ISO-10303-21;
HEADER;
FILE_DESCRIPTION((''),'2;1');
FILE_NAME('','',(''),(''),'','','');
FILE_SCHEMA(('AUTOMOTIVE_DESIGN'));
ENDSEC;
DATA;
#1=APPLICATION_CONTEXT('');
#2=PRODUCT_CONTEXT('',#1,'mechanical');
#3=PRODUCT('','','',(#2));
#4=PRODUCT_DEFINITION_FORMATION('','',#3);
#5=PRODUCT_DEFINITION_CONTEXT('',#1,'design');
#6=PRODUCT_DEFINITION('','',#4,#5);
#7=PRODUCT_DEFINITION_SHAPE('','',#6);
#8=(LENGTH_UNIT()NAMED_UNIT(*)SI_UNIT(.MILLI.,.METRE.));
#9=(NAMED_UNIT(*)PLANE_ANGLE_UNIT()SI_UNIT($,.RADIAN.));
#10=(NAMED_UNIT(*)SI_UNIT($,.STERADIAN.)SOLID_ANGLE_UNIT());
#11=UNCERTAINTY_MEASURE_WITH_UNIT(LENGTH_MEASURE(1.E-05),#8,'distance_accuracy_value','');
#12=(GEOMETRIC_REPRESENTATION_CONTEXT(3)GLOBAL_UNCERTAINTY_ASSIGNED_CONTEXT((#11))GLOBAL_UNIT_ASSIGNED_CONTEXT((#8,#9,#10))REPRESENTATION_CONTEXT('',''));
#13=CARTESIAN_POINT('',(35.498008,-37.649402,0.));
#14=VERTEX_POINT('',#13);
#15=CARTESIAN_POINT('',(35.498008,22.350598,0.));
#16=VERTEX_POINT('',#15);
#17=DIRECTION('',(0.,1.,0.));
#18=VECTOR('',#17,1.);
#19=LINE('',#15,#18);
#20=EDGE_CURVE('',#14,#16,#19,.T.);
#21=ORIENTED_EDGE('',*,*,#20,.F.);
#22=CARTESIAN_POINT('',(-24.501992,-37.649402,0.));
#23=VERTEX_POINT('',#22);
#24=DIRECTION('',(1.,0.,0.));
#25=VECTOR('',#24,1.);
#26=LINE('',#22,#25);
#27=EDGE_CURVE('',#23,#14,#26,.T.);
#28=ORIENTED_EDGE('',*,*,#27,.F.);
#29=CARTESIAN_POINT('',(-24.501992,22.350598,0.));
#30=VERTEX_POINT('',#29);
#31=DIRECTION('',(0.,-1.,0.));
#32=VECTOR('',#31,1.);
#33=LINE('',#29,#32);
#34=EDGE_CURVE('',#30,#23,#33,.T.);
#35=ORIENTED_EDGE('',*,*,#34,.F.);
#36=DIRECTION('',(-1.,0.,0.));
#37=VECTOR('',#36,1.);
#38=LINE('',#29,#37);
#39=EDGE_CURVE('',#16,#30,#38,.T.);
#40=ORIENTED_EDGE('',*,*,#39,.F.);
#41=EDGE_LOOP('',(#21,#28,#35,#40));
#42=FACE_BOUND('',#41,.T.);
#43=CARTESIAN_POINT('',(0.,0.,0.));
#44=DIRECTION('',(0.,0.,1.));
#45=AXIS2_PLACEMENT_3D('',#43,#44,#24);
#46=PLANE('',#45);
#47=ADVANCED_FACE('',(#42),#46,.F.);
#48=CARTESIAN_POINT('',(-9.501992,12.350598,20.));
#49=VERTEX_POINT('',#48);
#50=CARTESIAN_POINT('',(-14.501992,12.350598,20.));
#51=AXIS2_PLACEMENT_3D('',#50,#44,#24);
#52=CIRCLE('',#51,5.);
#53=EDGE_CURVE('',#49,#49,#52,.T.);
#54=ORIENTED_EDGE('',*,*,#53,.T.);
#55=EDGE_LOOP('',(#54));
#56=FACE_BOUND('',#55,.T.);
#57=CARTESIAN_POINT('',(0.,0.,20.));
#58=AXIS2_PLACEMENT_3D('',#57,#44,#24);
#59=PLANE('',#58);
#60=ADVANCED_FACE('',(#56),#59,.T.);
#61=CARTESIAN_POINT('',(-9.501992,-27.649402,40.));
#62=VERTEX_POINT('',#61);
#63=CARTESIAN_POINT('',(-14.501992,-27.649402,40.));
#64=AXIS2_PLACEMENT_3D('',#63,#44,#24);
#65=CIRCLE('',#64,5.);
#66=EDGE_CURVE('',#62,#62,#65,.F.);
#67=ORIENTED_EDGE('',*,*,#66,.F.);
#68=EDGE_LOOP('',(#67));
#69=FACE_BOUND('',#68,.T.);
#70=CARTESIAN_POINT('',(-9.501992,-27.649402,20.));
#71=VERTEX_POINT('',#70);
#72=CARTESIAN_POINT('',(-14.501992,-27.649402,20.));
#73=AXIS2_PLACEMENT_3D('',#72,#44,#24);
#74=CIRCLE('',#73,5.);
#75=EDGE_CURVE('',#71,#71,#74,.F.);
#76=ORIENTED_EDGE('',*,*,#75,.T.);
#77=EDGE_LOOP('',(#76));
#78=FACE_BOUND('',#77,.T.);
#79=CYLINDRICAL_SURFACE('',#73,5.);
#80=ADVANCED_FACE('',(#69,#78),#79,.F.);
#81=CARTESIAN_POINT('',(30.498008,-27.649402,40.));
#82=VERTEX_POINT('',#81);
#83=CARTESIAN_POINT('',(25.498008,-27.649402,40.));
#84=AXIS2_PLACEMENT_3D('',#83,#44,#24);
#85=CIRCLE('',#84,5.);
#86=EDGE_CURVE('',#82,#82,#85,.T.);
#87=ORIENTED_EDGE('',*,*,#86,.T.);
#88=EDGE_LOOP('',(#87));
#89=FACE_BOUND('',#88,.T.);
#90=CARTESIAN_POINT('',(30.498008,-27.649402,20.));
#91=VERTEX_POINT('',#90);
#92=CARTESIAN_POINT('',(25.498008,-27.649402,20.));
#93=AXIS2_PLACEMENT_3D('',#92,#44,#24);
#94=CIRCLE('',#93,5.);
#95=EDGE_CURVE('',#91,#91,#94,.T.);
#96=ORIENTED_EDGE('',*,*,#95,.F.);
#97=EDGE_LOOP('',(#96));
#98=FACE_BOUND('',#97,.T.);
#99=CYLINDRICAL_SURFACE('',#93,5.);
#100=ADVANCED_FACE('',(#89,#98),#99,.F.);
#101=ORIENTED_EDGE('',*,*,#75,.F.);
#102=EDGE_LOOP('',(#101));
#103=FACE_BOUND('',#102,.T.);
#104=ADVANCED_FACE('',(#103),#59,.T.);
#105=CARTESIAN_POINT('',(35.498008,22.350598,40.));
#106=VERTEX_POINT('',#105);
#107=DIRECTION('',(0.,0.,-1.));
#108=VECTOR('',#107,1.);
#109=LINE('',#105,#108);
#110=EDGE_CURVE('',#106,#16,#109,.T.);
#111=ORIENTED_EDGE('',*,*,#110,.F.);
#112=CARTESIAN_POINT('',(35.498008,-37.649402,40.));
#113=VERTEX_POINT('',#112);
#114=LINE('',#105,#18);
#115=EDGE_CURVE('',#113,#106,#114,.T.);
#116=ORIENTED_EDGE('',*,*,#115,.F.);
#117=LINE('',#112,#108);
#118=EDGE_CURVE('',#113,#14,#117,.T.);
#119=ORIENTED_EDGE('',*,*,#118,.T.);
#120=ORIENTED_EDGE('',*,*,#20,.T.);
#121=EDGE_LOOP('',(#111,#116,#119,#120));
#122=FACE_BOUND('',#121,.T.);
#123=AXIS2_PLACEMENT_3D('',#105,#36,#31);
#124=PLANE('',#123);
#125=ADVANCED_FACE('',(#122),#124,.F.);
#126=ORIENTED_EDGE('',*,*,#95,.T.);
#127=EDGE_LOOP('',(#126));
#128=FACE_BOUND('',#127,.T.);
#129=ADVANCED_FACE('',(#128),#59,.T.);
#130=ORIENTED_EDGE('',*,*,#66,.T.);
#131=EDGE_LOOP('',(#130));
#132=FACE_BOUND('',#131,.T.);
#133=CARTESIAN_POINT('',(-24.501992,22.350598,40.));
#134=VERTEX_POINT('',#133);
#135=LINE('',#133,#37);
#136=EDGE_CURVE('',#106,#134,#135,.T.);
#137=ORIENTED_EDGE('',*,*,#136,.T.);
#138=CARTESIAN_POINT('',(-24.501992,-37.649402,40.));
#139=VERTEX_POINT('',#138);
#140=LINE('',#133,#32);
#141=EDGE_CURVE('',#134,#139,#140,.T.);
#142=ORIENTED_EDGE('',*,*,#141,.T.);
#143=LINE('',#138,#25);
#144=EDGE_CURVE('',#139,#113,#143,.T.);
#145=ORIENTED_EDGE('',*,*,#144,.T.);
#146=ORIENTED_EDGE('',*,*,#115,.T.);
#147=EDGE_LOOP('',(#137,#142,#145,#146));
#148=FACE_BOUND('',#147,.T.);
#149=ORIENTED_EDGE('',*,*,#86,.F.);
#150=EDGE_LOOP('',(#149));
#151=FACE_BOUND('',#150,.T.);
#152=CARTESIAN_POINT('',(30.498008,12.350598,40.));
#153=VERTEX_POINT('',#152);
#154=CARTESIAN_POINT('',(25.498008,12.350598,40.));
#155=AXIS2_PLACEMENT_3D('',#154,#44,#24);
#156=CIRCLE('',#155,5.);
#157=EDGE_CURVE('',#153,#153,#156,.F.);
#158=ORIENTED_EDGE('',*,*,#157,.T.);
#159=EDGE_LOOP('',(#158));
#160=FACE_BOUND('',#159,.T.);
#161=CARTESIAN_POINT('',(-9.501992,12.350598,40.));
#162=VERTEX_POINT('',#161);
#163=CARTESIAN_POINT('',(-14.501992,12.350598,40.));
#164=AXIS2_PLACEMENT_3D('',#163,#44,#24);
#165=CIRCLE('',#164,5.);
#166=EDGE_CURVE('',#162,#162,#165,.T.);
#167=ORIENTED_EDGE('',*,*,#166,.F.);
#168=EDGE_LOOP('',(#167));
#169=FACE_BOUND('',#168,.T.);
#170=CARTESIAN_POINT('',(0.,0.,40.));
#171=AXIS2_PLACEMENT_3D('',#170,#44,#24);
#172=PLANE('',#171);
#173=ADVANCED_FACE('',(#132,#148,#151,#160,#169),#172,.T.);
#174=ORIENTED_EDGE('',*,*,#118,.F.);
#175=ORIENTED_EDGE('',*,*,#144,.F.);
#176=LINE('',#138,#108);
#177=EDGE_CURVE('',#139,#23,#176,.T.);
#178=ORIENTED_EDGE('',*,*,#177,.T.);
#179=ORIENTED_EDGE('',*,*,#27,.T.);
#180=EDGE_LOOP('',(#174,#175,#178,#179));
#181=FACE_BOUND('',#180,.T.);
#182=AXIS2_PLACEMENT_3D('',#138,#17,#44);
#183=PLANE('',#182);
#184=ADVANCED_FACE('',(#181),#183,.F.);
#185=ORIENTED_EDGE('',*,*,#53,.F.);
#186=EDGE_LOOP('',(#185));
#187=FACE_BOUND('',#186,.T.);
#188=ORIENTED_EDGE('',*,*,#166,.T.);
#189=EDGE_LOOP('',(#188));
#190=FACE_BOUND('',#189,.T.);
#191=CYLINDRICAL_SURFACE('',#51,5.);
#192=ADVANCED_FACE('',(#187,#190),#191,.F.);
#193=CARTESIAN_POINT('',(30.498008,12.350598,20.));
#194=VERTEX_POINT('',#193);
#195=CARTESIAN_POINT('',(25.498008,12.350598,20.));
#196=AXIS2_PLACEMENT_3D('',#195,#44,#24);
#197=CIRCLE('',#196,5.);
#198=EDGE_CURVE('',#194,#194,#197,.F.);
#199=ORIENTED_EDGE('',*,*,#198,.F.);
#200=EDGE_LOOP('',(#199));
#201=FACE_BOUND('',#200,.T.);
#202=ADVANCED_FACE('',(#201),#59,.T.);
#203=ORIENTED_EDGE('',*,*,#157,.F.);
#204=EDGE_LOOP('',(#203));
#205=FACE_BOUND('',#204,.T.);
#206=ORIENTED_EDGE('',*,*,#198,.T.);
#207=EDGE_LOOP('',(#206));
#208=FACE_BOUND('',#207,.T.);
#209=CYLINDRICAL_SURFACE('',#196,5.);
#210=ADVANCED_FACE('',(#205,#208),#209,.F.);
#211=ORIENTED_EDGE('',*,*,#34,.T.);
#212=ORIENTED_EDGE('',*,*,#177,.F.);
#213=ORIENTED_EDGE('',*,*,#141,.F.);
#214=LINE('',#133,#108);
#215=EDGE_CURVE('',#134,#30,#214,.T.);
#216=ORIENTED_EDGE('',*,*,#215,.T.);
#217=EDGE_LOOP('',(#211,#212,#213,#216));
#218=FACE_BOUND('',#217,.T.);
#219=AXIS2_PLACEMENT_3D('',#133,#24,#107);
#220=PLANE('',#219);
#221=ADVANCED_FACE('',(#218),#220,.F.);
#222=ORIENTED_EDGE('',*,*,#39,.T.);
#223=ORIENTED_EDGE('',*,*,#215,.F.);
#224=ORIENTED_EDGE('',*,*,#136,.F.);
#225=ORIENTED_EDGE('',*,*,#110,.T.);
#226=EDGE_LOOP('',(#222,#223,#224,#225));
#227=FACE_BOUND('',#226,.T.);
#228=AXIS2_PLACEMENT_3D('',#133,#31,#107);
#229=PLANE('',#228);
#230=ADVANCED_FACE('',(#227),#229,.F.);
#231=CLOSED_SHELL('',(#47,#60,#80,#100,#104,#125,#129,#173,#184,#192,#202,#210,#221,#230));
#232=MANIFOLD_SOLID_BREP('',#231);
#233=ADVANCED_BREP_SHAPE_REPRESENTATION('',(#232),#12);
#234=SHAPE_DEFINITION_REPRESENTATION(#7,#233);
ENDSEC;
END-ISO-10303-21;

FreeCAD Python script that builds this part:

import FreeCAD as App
import Part
import Sketcher

V = App.Vector
Q = App.Units.Quantity

doc = App.newDocument("Part")
body = doc.addObject("PartDesign::Body", "Body")

# Sketch on XY plane
sketch1 = body.newObject("Sketcher::SketchObject", "Sketch")
sketch1.AttachmentSupport = (doc.getObject("XY_Plane"), [""])
sketch1.MapMode = "FlatFace"
sketch1.addGeometry(Part.LineSegment(V(-25, 22, 0), V(-25, -38, 0)), False)
sketch1.addGeometry(Part.LineSegment(V(-25, -38, 0), V(35, -38, 0)), False)
sketch1.addGeometry(Part.LineSegment(V(35, -38, 0), V(35, 22, 0)), False)
sketch1.addGeometry(Part.LineSegment(V(35, 22, 0), V(-25, 22, 0)), False)
sketch1.addConstraint(Sketcher.Constraint("Coincident", 0, 2, 1, 1))
sketch1.addConstraint(Sketcher.Constraint("Coincident", 1, 2, 2, 1))
sketch1.addConstraint(Sketcher.Constraint("Coincident", 2, 2, 3, 1))
sketch1.addConstraint(Sketcher.Constraint("Coincident", 3, 2, 0, 1))
sketch1.addConstraint(Sketcher.Constraint("Vertical", 0))
sketch1.addConstraint(Sketcher.Constraint("Horizontal", 1))
sketch1.addConstraint(Sketcher.Constraint("Vertical", 2))
sketch1.addConstraint(Sketcher.Constraint("Horizontal", 3))
sketch1.addConstraint(Sketcher.Constraint("Equal", 3, 0))
sketch1.addConstraint(Sketcher.Constraint("DistanceX", 1, 1, 1, 2, Q("60 mm")))
sketch1.addConstraint(Sketcher.Constraint("DistanceX", 0, 2, -1, 1, Q("24.501992 mm")))
sketch1.addConstraint(Sketcher.Constraint("DistanceY", 0, 2, -1, 1, Q("37.649402 mm")))
pad1 = body.newObject("PartDesign::Pad", "Pad")
pad1.Profile = sketch1
pad1.Length = 40

# Sketch on XY plane
sketch2 = body.newObject("Sketcher::SketchObject", "Sketch001")
sketch2.AttachmentSupport = (doc.getObject("XY_Plane"), [""])
sketch2.MapMode = "FlatFace"
sketch2.AttachmentOffset = App.Placement(V(0, 0, 40), App.Rotation())
sketch2.addGeometry(Part.Circle(V(-15, 12, 0), V(0, 0, 1), 5), False)
sketch2.addGeometry(Part.Circle(V(25, 12, 0), V(0, 0, 1), 5), False)
sketch2.addGeometry(Part.Circle(V(25, -28, 0), V(0, 0, 1), 5), False)
sketch2.addGeometry(Part.Circle(V(-15, -28, 0), V(0, 0, 1), 5), False)
sketch2.addConstraint(Sketcher.Constraint("Equal", 0, 1))
sketch2.addConstraint(Sketcher.Constraint("Equal", 1, 2))
sketch2.addConstraint(Sketcher.Constraint("Equal", 2, 3))
sketch2.addConstraint(Sketcher.Constraint("Horizontal", 0, 3, 1, 3))
sketch2.addConstraint(Sketcher.Constraint("Horizontal", 2, 3, 3, 3))
sketch2.addConstraint(Sketcher.Constraint("Vertical", 1, 3, 2, 3))
sketch2.addConstraint(Sketcher.Constraint("Vertical", 0, 3, 3, 3))
sketch2.addConstraint(Sketcher.Constraint("Diameter", 0, Q("10 mm")))
sketch2.addConstraint(Sketcher.Constraint("DistanceX", 0, 3, 1, 3, Q("40 mm")))
sketch2.addConstraint(Sketcher.Constraint("DistanceY", 2, 3, 1, 3, Q("40 mm")))
sketch2.addConstraint(Sketcher.Constraint("DistanceX", 0, 3, -1, 1, Q("14.501992 mm")))
sketch2.addConstraint(Sketcher.Constraint("DistanceY", -1, 1, 0, 3, Q("12.350598 mm")))
pocket1 = body.newObject("PartDesign::Pocket", "Pocket")
pocket1.Profile = sketch2
pocket1.Length = 20

doc.recompute()
